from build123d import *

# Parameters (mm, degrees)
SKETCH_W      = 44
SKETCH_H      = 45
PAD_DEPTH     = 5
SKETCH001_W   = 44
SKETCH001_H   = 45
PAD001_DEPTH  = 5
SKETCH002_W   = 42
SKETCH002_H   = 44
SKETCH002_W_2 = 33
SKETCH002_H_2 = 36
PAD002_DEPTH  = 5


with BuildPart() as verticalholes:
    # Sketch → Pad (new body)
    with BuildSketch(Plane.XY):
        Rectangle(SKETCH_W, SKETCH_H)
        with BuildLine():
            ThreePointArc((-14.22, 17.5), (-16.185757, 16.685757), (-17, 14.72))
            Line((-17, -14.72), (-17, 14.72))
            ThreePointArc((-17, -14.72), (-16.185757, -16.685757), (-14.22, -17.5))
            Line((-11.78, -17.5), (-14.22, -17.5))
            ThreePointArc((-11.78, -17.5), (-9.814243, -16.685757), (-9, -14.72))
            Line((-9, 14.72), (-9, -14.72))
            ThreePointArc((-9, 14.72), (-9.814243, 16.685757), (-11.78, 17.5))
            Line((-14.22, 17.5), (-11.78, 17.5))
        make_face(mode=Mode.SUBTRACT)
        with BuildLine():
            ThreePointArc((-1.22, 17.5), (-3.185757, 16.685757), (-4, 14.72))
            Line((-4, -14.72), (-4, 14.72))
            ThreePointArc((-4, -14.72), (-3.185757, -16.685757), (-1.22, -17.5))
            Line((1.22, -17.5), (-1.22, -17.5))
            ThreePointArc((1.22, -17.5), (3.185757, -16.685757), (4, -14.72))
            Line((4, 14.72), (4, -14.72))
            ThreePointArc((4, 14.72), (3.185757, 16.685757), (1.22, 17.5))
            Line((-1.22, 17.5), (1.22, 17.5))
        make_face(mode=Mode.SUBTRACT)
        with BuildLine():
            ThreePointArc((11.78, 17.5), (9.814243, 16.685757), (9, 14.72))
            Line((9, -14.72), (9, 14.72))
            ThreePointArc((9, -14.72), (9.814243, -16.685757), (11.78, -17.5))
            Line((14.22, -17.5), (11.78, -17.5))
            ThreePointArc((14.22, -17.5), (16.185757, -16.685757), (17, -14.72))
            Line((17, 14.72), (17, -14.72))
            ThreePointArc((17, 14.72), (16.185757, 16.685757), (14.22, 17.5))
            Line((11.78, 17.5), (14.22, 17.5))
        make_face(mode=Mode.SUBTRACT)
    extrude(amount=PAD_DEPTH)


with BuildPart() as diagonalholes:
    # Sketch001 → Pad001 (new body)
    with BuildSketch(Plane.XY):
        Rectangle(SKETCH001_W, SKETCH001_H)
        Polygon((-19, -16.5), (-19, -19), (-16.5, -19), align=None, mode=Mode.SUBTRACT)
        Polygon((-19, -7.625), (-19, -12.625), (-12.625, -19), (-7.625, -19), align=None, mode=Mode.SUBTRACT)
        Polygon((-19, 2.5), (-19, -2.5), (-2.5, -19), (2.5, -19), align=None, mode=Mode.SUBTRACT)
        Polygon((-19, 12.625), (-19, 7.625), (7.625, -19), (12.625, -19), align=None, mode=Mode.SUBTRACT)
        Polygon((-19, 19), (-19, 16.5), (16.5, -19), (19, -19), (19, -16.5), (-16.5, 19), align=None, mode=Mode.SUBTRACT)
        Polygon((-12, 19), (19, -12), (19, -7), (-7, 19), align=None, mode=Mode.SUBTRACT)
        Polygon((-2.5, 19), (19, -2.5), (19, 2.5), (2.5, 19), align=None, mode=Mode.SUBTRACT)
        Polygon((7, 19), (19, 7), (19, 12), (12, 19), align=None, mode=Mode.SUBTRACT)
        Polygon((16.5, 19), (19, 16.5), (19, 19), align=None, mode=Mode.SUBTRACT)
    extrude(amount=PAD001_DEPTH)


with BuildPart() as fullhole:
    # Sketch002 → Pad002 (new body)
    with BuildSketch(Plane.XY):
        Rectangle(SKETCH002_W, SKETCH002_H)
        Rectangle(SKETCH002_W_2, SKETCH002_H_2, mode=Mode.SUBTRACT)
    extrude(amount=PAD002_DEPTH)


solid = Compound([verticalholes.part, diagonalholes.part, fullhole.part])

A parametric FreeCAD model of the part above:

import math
import FreeCAD as App
import Part
import Sketcher

V = App.Vector
Q = App.Units.Quantity

doc = App.newDocument("Part")
params = doc.addObject("Spreadsheet::Sheet", "Params")
for row, (alias, value) in enumerate([
    ("sketch1_width", "44 mm"),
    ("sketch1_height", "45 mm"),
    ("sketch1_radius", "2.779999 mm"),
    ("pad1_length", "5 mm"),
    ("sketch2_width", "44 mm"),
    ("sketch2_width2", "5 mm"),
    ("sketch2_height", "45 mm"),
    ("sketch2_width3", "2.5 mm"),
    ("pad2_length", "5 mm"),
    ("sketch3_width", "42 mm"),
    ("sketch3_width2", "33 mm"),
    ("sketch3_height", "44 mm"),
    ("sketch3_height2", "36 mm"),
    ("pad3_length", "5 mm"),
], start=1):
    params.set(f"A{row}", alias)
    params.set(f"B{row}", "=" + value)
    params.setAlias(f"B{row}", alias)

body = doc.addObject("PartDesign::Body", "Body")

sketch1 = body.newObject("Sketcher::SketchObject", "Sketch")
sketch1.AttachmentSupport = (doc.getObject("XY_Plane"), [""])
sketch1.MapMode = "FlatFace"
sketch1.addGeometry(Part.LineSegment(V(-22, 22.5, 0), V(-22, -22.5, 0)), False)
sketch1.addGeometry(Part.LineSegment(V(-22, -22.5, 0), V(22, -22.5, 0)), False)
sketch1.addGeometry(Part.LineSegment(V(22, -22.5, 0), V(22, 22.5, 0)), False)
sketch1.addGeometry(Part.LineSegment(V(22, 22.5, 0), V(-22, 22.5, 0)), False)
sketch1.addGeometry(Part.ArcOfCircle(Part.Circle(V(-14.220001, 14.720001, 0), V(0, 0, 1), 2.779999), math.radians(89.99999), math.radians(180.00001)), False)
sketch1.addGeometry(Part.LineSegment(V(-14.22, 17.5, 0), V(-11.78, 17.5, 0)), False)
sketch1.addGeometry(Part.ArcOfCircle(Part.Circle(V(-11.779999, 14.720001, 0), V(0, 0, 1), 2.779999), math.radians(-0.00001), math.radians(90.00001)), False)
sketch1.addGeometry(Part.LineSegment(V(-9, 14.72, 0), V(-9, -14.72, 0)), False)
sketch1.addGeometry(Part.ArcOfCircle(Part.Circle(V(-11.779999, -14.720001, 0), V(0, 0, 1), 2.779999), math.radians(-90.00001), math.radians(0.00001)), False)
sketch1.addGeometry(Part.LineSegment(V(-11.78, -17.5, 0), V(-14.22, -17.5, 0)), False)
sketch1.addGeometry(Part.ArcOfCircle(Part.Circle(V(-14.220001, -14.720001, 0), V(0, 0, 1), 2.779999), math.radians(179.99999), math.radians(270.00001)), False)
sketch1.addGeometry(Part.LineSegment(V(-17, -14.72, 0), V(-17, 14.72, 0)), False)
sketch1.addGeometry(Part.ArcOfCircle(Part.Circle(V(-1.220001, 14.720001, 0), V(0, 0, 1), 2.779999), math.radians(89.99999), math.radians(180.00001)), False)
sketch1.addGeometry(Part.LineSegment(V(-1.22, 17.5, 0), V(1.22, 17.5, 0)), False)
sketch1.addGeometry(Part.ArcOfCircle(Part.Circle(V(1.220001, 14.720001, 0), V(0, 0, 1), 2.779999), math.radians(-0.00001), math.radians(90.00001)), False)
sketch1.addGeometry(Part.LineSegment(V(4, 14.72, 0), V(4, -14.72, 0)), False)
sketch1.addGeometry(Part.ArcOfCircle(Part.Circle(V(1.220001, -14.720001, 0), V(0, 0, 1), 2.779999), math.radians(-90.00001), math.radians(0.00001)), False)
sketch1.addGeometry(Part.LineSegment(V(1.22, -17.5, 0), V(-1.22, -17.5, 0)), False)
sketch1.addGeometry(Part.ArcOfCircle(Part.Circle(V(-1.220001, -14.720001, 0), V(0, 0, 1), 2.779999), math.radians(179.99999), math.radians(270.00001)), False)
sketch1.addGeometry(Part.LineSegment(V(-4, -14.72, 0), V(-4, 14.72, 0)), False)
sketch1.addGeometry(Part.ArcOfCircle(Part.Circle(V(11.779999, 14.720001, 0), V(0, 0, 1), 2.779999), math.radians(89.99999), math.radians(180.00001)), False)
sketch1.addGeometry(Part.LineSegment(V(11.78, 17.5, 0), V(14.22, 17.5, 0)), False)
sketch1.addGeometry(Part.ArcOfCircle(Part.Circle(V(14.220001, 14.720001, 0), V(0, 0, 1), 2.779999), math.radians(-0.00001), math.radians(90.00001)), False)
sketch1.addGeometry(Part.LineSegment(V(17, 14.72, 0), V(17, -14.72, 0)), False)
sketch1.addGeometry(Part.ArcOfCircle(Part.Circle(V(14.220001, -14.720001, 0), V(0, 0, 1), 2.779999), math.radians(-90.00001), math.radians(0.00001)), False)
sketch1.addGeometry(Part.LineSegment(V(14.22, -17.5, 0), V(11.78, -17.5, 0)), False)
sketch1.addGeometry(Part.ArcOfCircle(Part.Circle(V(11.779999, -14.720001, 0), V(0, 0, 1), 2.779999), math.radians(179.99999), math.radians(270.00001)), False)
sketch1.addGeometry(Part.LineSegment(V(9, -14.72, 0), V(9, 14.72, 0)), False)
sketch1.addConstraint(Sketcher.Constraint("Coincident", 0, 2, 1, 1))
sketch1.addConstraint(Sketcher.Constraint("Coincident", 1, 2, 2, 1))
sketch1.addConstraint(Sketcher.Constraint("Coincident", 2, 2, 3, 1))
sketch1.addConstraint(Sketcher.Constraint("Coincident", 3, 2, 0, 1))
sketch1.addConstraint(Sketcher.Constraint("Tangent", 4, 1, 5, 1))
sketch1.addConstraint(Sketcher.Constraint("Tangent", 5, 2, 6, 2))
sketch1.addConstraint(Sketcher.Constraint("Tangent", 6, 1, 7, 1))
sketch1.addConstraint(Sketcher.Constraint("Tangent", 7, 2, 8, 2))
sketch1.addConstraint(Sketcher.Constraint("Tangent", 8, 1, 9, 1))
sketch1.addConstraint(Sketcher.Constraint("Tangent", 9, 2, 10, 2))
sketch1.addConstraint(Sketcher.Constraint("Tangent", 10, 1, 11, 1))
sketch1.addConstraint(Sketcher.Constraint("Tangent", 11, 2, 4, 2))
sketch1.addConstraint(Sketcher.Constraint("Tangent", 12, 1, 13, 1))
sketch1.addConstraint(Sketcher.Constraint("Tangent", 13, 2, 14, 2))
sketch1.addConstraint(Sketcher.Constraint("Tangent", 14, 1, 15, 1))
sketch1.addConstraint(Sketcher.Constraint("Tangent", 15, 2, 16, 2))
sketch1.addConstraint(Sketcher.Constraint("Tangent", 16, 1, 17, 1))
sketch1.addConstraint(Sketcher.Constraint("Tangent", 17, 2, 18, 2))
sketch1.addConstraint(Sketcher.Constraint("Tangent", 18, 1, 19, 1))
sketch1.addConstraint(Sketcher.Constraint("Tangent", 19, 2, 12, 2))
sketch1.addConstraint(Sketcher.Constraint("Tangent", 20, 1, 21, 1))
sketch1.addConstraint(Sketcher.Constraint("Tangent", 21, 2, 22, 2))
sketch1.addConstraint(Sketcher.Constraint("Tangent", 22, 1, 23, 1))
sketch1.addConstraint(Sketcher.Constraint("Tangent", 23, 2, 24, 2))
sketch1.addConstraint(Sketcher.Constraint("Tangent", 24, 1, 25, 1))
sketch1.addConstraint(Sketcher.Constraint("Tangent", 25, 2, 26, 2))
sketch1.addConstraint(Sketcher.Constraint("Tangent", 26, 1, 27, 1))
sketch1.addConstraint(Sketcher.Constraint("Tangent", 27, 2, 20, 2))
sketch1.addConstraint(Sketcher.Constraint("Vertical", 0))
sketch1.addConstraint(Sketcher.Constraint("Horizontal", 1))
sketch1.addConstraint(Sketcher.Constraint("Vertical", 2))
sketch1.addConstraint(Sketcher.Constraint("Horizontal", 3))
sketch1.addConstraint(Sketcher.Constraint("Horizontal", 5))
sketch1.addConstraint(Sketcher.Constraint("Vertical", 7))
sketch1.addConstraint(Sketcher.Constraint("Horizontal", 9))
sketch1.addConstraint(Sketcher.Constraint("Vertical", 11))
sketch1.addConstraint(Sketcher.Constraint("Horizontal", 13))
sketch1.addConstraint(Sketcher.Constraint("Vertical", 15))
sketch1.addConstraint(Sketcher.Constraint("Horizontal", 17))
sketch1.addConstraint(Sketcher.Constraint("Vertical", 19))
sketch1.addConstraint(Sketcher.Constraint("Horizontal", 21))
sketch1.addConstraint(Sketcher.Constraint("Vertical", 23))
sketch1.addConstraint(Sketcher.Constraint("Horizontal", 25))
sketch1.addConstraint(Sketcher.Constraint("Vertical", 27))
sketch1.addConstraint(Sketcher.Constraint("Equal", 4, 6))
sketch1.addConstraint(Sketcher.Constraint("Equal", 6, 8))
sketch1.addConstraint(Sketcher.Constraint("Equal", 8, 10))
sketch1.addConstraint(Sketcher.Constraint("Equal", 10, 12))
sketch1.addConstraint(Sketcher.Constraint("Equal", 12, 14))
sketch1.addConstraint(Sketcher.Constraint("Equal", 14, 16))
sketch1.addConstraint(Sketcher.Constraint("Equal", 16, 18))
sketch1.addConstraint(Sketcher.Constraint("Equal", 18, 20))
sketch1.addConstraint(Sketcher.Constraint("Equal", 20, 22))
sketch1.addConstraint(Sketcher.Constraint("Equal", 22, 24))
sketch1.addConstraint(Sketcher.Constraint("Equal", 24, 26))
sketch1.addConstraint(Sketcher.Constraint("Symmetric", 12, 3, 16, 3, -1, 1))
sketch1.addConstraint(Sketcher.Constraint("Symmetric", 8, 3, 20, 3, -1, 1))
sketch1.addConstraint(Sketcher.Constraint("Symmetric", 4, 3, 24, 3, -1, 1))
sketch1.addConstraint(Sketcher.Constraint("Symmetric", 0, 2, 2, 2, -1, 1))
sketch1.addConstraint(Sketcher.Constraint("Horizontal", 6, 3, 12, 3))
sketch1.addConstraint(Sketcher.Constraint("Horizontal", 10, 3, 16, 3))
sketch1.addConstraint(Sketcher.Constraint("Equal", 9, 13))
sketch1.addConstraint(Sketcher.Constraint("DistanceX", 1, 1, 1, 2, Q("44 mm")))
sketch1.addConstraint(Sketcher.Constraint("DistanceY", 0, 2, 0, 1, Q("45 mm")))
sketch1.addConstraint(Sketcher.Constraint("Radius", 4, Q("2.779999 mm")))
sketch1.addConstraint(Sketcher.Constraint("DistanceX", 6, 1, -1, 1, Q("9 mm")))
sketch1.addConstraint(Sketcher.Constraint("DistanceX", 10, 1, -1, 1, Q("17 mm")))
sketch1.addConstraint(Sketcher.Constraint("DistanceY", 4, 1, 3, 2, Q("5 mm")))
sketch1.setExpression("Constraints[62]", "Params.sketch1_width")
sketch1.setExpression("Constraints[63]", "Params.sketch1_height")
sketch1.setExpression("Constraints[64]", "Params.sketch1_radius")
pad1 = body.newObject("PartDesign::Pad", "Pad")
pad1.Profile = sketch1
pad1.setExpression("Length", "Params.pad1_length")
body2 = doc.addObject("PartDesign::Body", "Body001")

sketch2 = body2.newObject("Sketcher::SketchObject", "Sketch001")
sketch2.AttachmentSupport = (doc.getObject("XY_Plane001"), [""])
sketch2.MapMode = "FlatFace"
sketch2.addGeometry(Part.LineSegment(V(-22, 22.5, 0), V(-22, -22.5, 0)), False)
sketch2.addGeometry(Part.LineSegment(V(-22, -22.5, 0), V(22, -22.5, 0)), False)
sketch2.addGeometry(Part.LineSegment(V(22, -22.5, 0), V(22, 22.5, 0)), False)
sketch2.addGeometry(Part.LineSegment(V(22, 22.5, 0), V(-22, 22.5, 0)), False)
sketch2.addGeometry(Part.LineSegment(V(-19, -19, 0), V(-19, -16.5, 0)), False)
sketch2.addGeometry(Part.LineSegment(V(-19, -16.5, 0), V(-16.5, -19, 0)), False)
sketch2.addGeometry(Part.LineSegment(V(-16.5, -19, 0), V(-19, -19, 0)), False)
sketch2.addGeometry(Part.LineSegment(V(-19, -12.625, 0), V(-19, -7.625, 0)), False)
sketch2.addGeometry(Part.LineSegment(V(-19, -7.625, 0), V(-7.625, -19, 0)), False)
sketch2.addGeometry(Part.LineSegment(V(-7.625, -19, 0), V(-12.625, -19, 0)), False)
sketch2.addGeometry(Part.LineSegment(V(-12.625, -19, 0), V(-19, -12.625, 0)), False)
sketch2.addGeometry(Part.LineSegment(V(-19, -2.5, 0), V(-19, 2.5, 0)), False)
sketch2.addGeometry(Part.LineSegment(V(-19, 2.5, 0), V(2.5, -19, 0)), False)
sketch2.addGeometry(Part.LineSegment(V(2.5, -19, 0), V(-2.5, -19, 0)), False)
sketch2.addGeometry(Part.LineSegment(V(-2.5, -19, 0), V(-19, -2.5, 0)), False)
sketch2.addGeometry(Part.LineSegment(V(-19, 7.625, 0), V(-19, 12.625, 0)), False)
sketch2.addGeometry(Part.LineSegment(V(-19, 12.625, 0), V(12.625, -19, 0)), False)
sketch2.addGeometry(Part.LineSegment(V(12.625, -19, 0), V(7.625, -19, 0)), False)
sketch2.addGeometry(Part.LineSegment(V(7.625, -19, 0), V(-19, 7.625, 0)), False)
sketch2.addGeometry(Part.LineSegment(V(-19, 16.5, 0), V(-19, 19, 0)), False)
sketch2.addGeometry(Part.LineSegment(V(-19, 19, 0), V(-16.5, 19, 0)), False)
sketch2.addGeometry(Part.LineSegment(V(-16.5, 19, 0), V(19, -16.5, 0)), False)
sketch2.addGeometry(Part.LineSegment(V(19, -16.5, 0), V(19, -19, 0)), False)
sketch2.addGeometry(Part.LineSegment(V(19, -19, 0), V(16.5, -19, 0)), False)
sketch2.addGeometry(Part.LineSegment(V(16.5, -19, 0), V(-19, 16.5, 0)), False)
sketch2.addGeometry(Part.LineSegment(V(19, -12, 0), V(-12, 19, 0)), False)
sketch2.addGeometry(Part.LineSegment(V(-12, 19, 0), V(-7, 19, 0)), False)
sketch2.addGeometry(Part.LineSegment(V(-7, 19, 0), V(19, -7, 0)), False)
sketch2.addGeometry(Part.LineSegment(V(19, -7, 0), V(19, -12, 0)), False)
sketch2.addGeometry(Part.LineSegment(V(19, -2.5, 0), V(-2.5, 19, 0)), False)
sketch2.addGeometry(Part.LineSegment(V(-2.5, 19, 0), V(2.5, 19, 0)), False)
sketch2.addGeometry(Part.LineSegment(V(2.5, 19, 0), V(19, 2.5, 0)), False)
sketch2.addGeometry(Part.LineSegment(V(19, 2.5, 0), V(19, -2.5, 0)), False)
sketch2.addGeometry(Part.LineSegment(V(19, 7, 0), V(7, 19, 0)), False)
sketch2.addGeometry(Part.LineSegment(V(7, 19, 0), V(12, 19, 0)), False)
sketch2.addGeometry(Part.LineSegment(V(12, 19, 0), V(19, 12, 0)), False)
sketch2.addGeometry(Part.LineSegment(V(19, 12, 0), V(19, 7, 0)), False)
sketch2.addGeometry(Part.LineSegment(V(19, 16.5, 0), V(16.5, 19, 0)), False)
sketch2.addGeometry(Part.LineSegment(V(16.5, 19, 0), V(19, 19, 0)), False)
sketch2.addGeometry(Part.LineSegment(V(19, 19, 0), V(19, 16.5, 0)), False)
sketch2.addConstraint(Sketcher.Constraint("Coincident", 0, 2, 1, 1))
sketch2.addConstraint(Sketcher.Constraint("Coincident", 1, 2, 2, 1))
sketch2.addConstraint(Sketcher.Constraint("Coincident", 2, 2, 3, 1))
sketch2.addConstraint(Sketcher.Constraint("Coincident", 3, 2, 0, 1))
sketch2.addConstraint(Sketcher.Constraint("Coincident", 4, 2, 5, 1))
sketch2.addConstraint(Sketcher.Constraint("Coincident", 5, 2, 6, 1))
sketch2.addConstraint(Sketcher.Constraint("Coincident", 6, 2, 4, 1))
sketch2.addConstraint(Sketcher.Constraint("Coincident", 7, 2, 8, 1))
sketch2.addConstraint(Sketcher.Constraint("Coincident", 8, 2, 9, 1))
sketch2.addConstraint(Sketcher.Constraint("Coincident", 9, 2, 10, 1))
sketch2.addConstraint(Sketcher.Constraint("Coincident", 10, 2, 7, 1))
sketch2.addConstraint(Sketcher.Constraint("Coincident", 11, 2, 12, 1))
sketch2.addConstraint(Sketcher.Constraint("Coincident", 12, 2, 13, 1))
sketch2.addConstraint(Sketcher.Constraint("Coincident", 13, 2, 14, 1))
sketch2.addConstraint(Sketcher.Constraint("Coincident", 14, 2, 11, 1))
sketch2.addConstraint(Sketcher.Constraint("Coincident", 15, 2, 16, 1))
sketch2.addConstraint(Sketcher.Constraint("Coincident", 16, 2, 17, 1))
sketch2.addConstraint(Sketcher.Constraint("Coincident", 17, 2, 18, 1))
sketch2.addConstraint(Sketcher.Constraint("Coincident", 18, 2, 15, 1))
sketch2.addConstraint(Sketcher.Constraint("Coincident", 19, 2, 20, 1))
sketch2.addConstraint(Sketcher.Constraint("Coincident", 20, 2, 21, 1))
sketch2.addConstraint(Sketcher.Constraint("Coincident", 21, 2, 22, 1))
sketch2.addConstraint(Sketcher.Constraint("Coincident", 22, 2, 23, 1))
sketch2.addConstraint(Sketcher.Constraint("Coincident", 23, 2, 24, 1))
sketch2.addConstraint(Sketcher.Constraint("Coincident", 24, 2, 19, 1))
sketch2.addConstraint(Sketcher.Constraint("Coincident", 25, 2, 26, 1))
sketch2.addConstraint(Sketcher.Constraint("Coincident", 26, 2, 27, 1))
sketch2.addConstraint(Sketcher.Constraint("Coincident", 27, 2, 28, 1))
sketch2.addConstraint(Sketcher.Constraint("Coincident", 28, 2, 25, 1))
sketch2.addConstraint(Sketcher.Constraint("Coincident", 29, 2, 30, 1))
sketch2.addConstraint(Sketcher.Constraint("Coincident", 30, 2, 31, 1))
sketch2.addConstraint(Sketcher.Constraint("Coincident", 31, 2, 32, 1))
sketch2.addConstraint(Sketcher.Constraint("Coincident", 32, 2, 29, 1))
sketch2.addConstraint(Sketcher.Constraint("Coincident", 33, 2, 34, 1))
sketch2.addConstraint(Sketcher.Constraint("Coincident", 34, 2, 35, 1))
sketch2.addConstraint(Sketcher.Constraint("Coincident", 35, 2, 36, 1))
sketch2.addConstraint(Sketcher.Constraint("Coincident", 36, 2, 33, 1))
sketch2.addConstraint(Sketcher.Constraint("Coincident", 37, 2, 38, 1))
sketch2.addConstraint(Sketcher.Constraint("Coincident", 38, 2, 39, 1))
sketch2.addConstraint(Sketcher.Constraint("Coincident", 39, 2, 37, 1))
sketch2.addConstraint(Sketcher.Constraint("Vertical", 0))
sketch2.addConstraint(Sketcher.Constraint("Horizontal", 1))
sketch2.addConstraint(Sketcher.Constraint("Vertical", 2))
sketch2.addConstraint(Sketcher.Constraint("Horizontal", 3))
sketch2.addConstraint(Sketcher.Constraint("Vertical", 4))
sketch2.addConstraint(Sketcher.Constraint("Horizontal", 6))
sketch2.addConstraint(Sketcher.Constraint("Vertical", 7))
sketch2.addConstraint(Sketcher.Constraint("Horizontal", 9))
sketch2.addConstraint(Sketcher.Constraint("Vertical", 11))
sketch2.addConstraint(Sketcher.Constraint("Horizontal", 13))
sketch2.addConstraint(Sketcher.Constraint("Vertical", 15))
sketch2.addConstraint(Sketcher.Constraint("Horizontal", 17))
sketch2.addConstraint(Sketcher.Constraint("Vertical", 19))
sketch2.addConstraint(Sketcher.Constraint("Horizontal", 20))
sketch2.addConstraint(Sketcher.Constraint("Vertical", 22))
sketch2.addConstraint(Sketcher.Constraint("Horizontal", 23))
sketch2.addConstraint(Sketcher.Constraint("Horizontal", 26))
sketch2.addConstraint(Sketcher.Constraint("Vertical", 28))
sketch2.addConstraint(Sketcher.Constraint("Horizontal", 30))
sketch2.addConstraint(Sketcher.Constraint("Vertical", 32))
sketch2.addConstraint(Sketcher.Constraint("Horizontal", 34))
sketch2.addConstraint(Sketcher.Constraint("Vertical", 36))
sketch2.addConstraint(Sketcher.Constraint("Horizontal", 38))
sketch2.addConstraint(Sketcher.Constraint("Vertical", 39))
sketch2.addConstraint(Sketcher.Constraint("Symmetric", 0, 2, 2, 2, -1, 1))
sketch2.addConstraint(Sketcher.Constraint("Symmetric", 19, 2, 22, 2, -1, 1))
sketch2.addConstraint(Sketcher.Constraint("Symmetric", 12, 2, 29, 2, -1, 1))
sketch2.addConstraint(Sketcher.Constraint("Symmetric", 14, 2, 31, 2, -1, 1))
sketch2.addConstraint(Sketcher.Constraint("Symmetric", 5, 2, 37, 2, -1, 1))
sketch2.addConstraint(Sketcher.Constraint("Symmetric", 4, 2, 39, 2, -1, 1))
sketch2.addConstraint(Sketcher.Constraint("Symmetric", 9, 2, 16, 2, -2))
sketch2.addConstraint(Sketcher.Constraint("Symmetric", 4, 2, 21, 2, -2))
sketch2.addConstraint(Sketcher.Constraint("Symmetric", 5, 2, 23, 2, -2))
sketch2.addConstraint(Sketcher.Constraint("Symmetric", 26, 2, 33, 2, -2))
sketch2.addConstraint(Sketcher.Constraint("Symmetric", 10, 2, 15, 2, -1))
sketch2.addConstraint(Sketcher.Constraint("Symmetric", 28, 2, 35, 2, -1))
sketch2.addConstraint(Sketcher.Constraint("Parallel", 5, 8))
sketch2.addConstraint(Sketcher.Constraint("Parallel", 8, 10))
sketch2.addConstraint(Sketcher.Constraint("Parallel", 10, 12))
sketch2.addConstraint(Sketcher.Constraint("Parallel", 12, 14))
sketch2.addConstraint(Sketcher.Constraint("Parallel", 14, 16))
sketch2.addConstraint(Sketcher.Constraint("Parallel", 16, 18))
sketch2.addConstraint(Sketcher.Constraint("Parallel", 18, 21))
sketch2.addConstraint(Sketcher.Constraint("Parallel", 21, 24))
sketch2.addConstraint(Sketcher.Constraint("Parallel", 24, 25))
sketch2.addConstraint(Sketcher.Constraint("Parallel", 25, 27))
sketch2.addConstraint(Sketcher.Constraint("Parallel", 27, 29))
sketch2.addConstraint(Sketcher.Constraint("Parallel", 29, 31))
sketch2.addConstraint(Sketcher.Constraint("Parallel", 31, 33))
sketch2.addConstraint(Sketcher.Constraint("Parallel", 33, 35))
sketch2.addConstraint(Sketcher.Constraint("Horizontal", 6, 2, 8, 2))
sketch2.addConstraint(Sketcher.Constraint("Horizontal", 9, 2, 12, 2))
sketch2.addConstraint(Sketcher.Constraint("Horizontal", 20, 2, 25, 2))
sketch2.addConstraint(Sketcher.Constraint("Horizontal", 11, 2, 31, 2))
sketch2.addConstraint(Sketcher.Constraint("Horizontal", 24, 2, 39, 2))
sketch2.addConstraint(Sketcher.Constraint("Vertical", 10, 2, 11, 2))
sketch2.addConstraint(Sketcher.Constraint("Vertical", 22, 2, 27, 2))
sketch2.addConstraint(Sketcher.Constraint("Equal", 9, 13))
sketch2.addConstraint(Sketcher.Constraint("Equal", 13, 17))
sketch2.addConstraint(Sketcher.Constraint("Equal", 17, 26))
sketch2.addConstraint(Sketcher.Constraint("Equal", 38, 4))
sketch2.addConstraint(Sketcher.Constraint("DistanceX", 1, 1, 1, 2, Q("44 mm")))
sketch2.addConstraint(Sketcher.Constraint("DistanceX", 9, 2, 9, 1, Q("5 mm")))
sketch2.addConstraint(Sketcher.Constraint("DistanceY", 0, 2, 0, 1, Q("45 mm")))
sketch2.addConstraint(Sketcher.Constraint("DistanceX", 6, 2, 6, 1, Q("2.5 mm")))
sketch2.addConstraint(Sketcher.Constraint("DistanceX", 4, 2, -1, 1, Q("19 mm")))
sketch2.addConstraint(Sketcher.Constraint("DistanceX", 25, 2, -1, 1, Q("12 mm")))
sketch2.addConstraint(Sketcher.Constraint("DistanceY", 7, 2, 15, 2, Q("20.25 mm")))
sketch2.setExpression("Constraints[101]", "Params.sketch2_width")
sketch2.setExpression("Constraints[102]", "Params.sketch2_width2")
sketch2.setExpression("Constraints[103]", "Params.sketch2_height")
sketch2.setExpression("Constraints[104]", "Params.sketch2_width3")
pad2 = body2.newObject("PartDesign::Pad", "Pad001")
pad2.Profile = sketch2
pad2.setExpression("Length", "Params.pad2_length")
body3 = doc.addObject("PartDesign::Body", "Body002")

sketch3 = body3.newObject("Sketcher::SketchObject", "Sketch002")
sketch3.AttachmentSupport = (doc.getObject("XY_Plane002"), [""])
sketch3.MapMode = "FlatFace"
sketch3.addGeometry(Part.LineSegment(V(-21, 22, 0), V(-21, -22, 0)), False)
sketch3.addGeometry(Part.LineSegment(V(-21, -22, 0), V(21, -22, 0)), False)
sketch3.addGeometry(Part.LineSegment(V(21, -22, 0), V(21, 22, 0)), False)
sketch3.addGeometry(Part.LineSegment(V(21, 22, 0), V(-21, 22, 0)), False)
sketch3.addGeometry(Part.LineSegment(V(16.5, -18, 0), V(-16.5, -18, 0)), False)
sketch3.addGeometry(Part.LineSegment(V(-16.5, -18, 0), V(-16.5, 18, 0)), False)
sketch3.addGeometry(Part.LineSegment(V(-16.5, 18, 0), V(16.5, 18, 0)), False)
sketch3.addGeometry(Part.LineSegment(V(16.5, 18, 0), V(16.5, -18, 0)), False)
sketch3.addConstraint(Sketcher.Constraint("Coincident", 0, 2, 1, 1))
sketch3.addConstraint(Sketcher.Constraint("Coincident", 1, 2, 2, 1))
sketch3.addConstraint(Sketcher.Constraint("Coincident", 2, 2, 3, 1))
sketch3.addConstraint(Sketcher.Constraint("Coincident", 3, 2, 0, 1))
sketch3.addConstraint(Sketcher.Constraint("Coincident", 4, 2, 5, 1))
sketch3.addConstraint(Sketcher.Constraint("Coincident", 5, 2, 6, 1))
sketch3.addConstraint(Sketcher.Constraint("Coincident", 6, 2, 7, 1))
sketch3.addConstraint(Sketcher.Constraint("Coincident", 7, 2, 4, 1))
sketch3.addConstraint(Sketcher.Constraint("Vertical", 0))
sketch3.addConstraint(Sketcher.Constraint("Horizontal", 1))
sketch3.addConstraint(Sketcher.Constraint("Vertical", 2))
sketch3.addConstraint(Sketcher.Constraint("Horizontal", 3))
sketch3.addConstraint(Sketcher.Constraint("Horizontal", 4))
sketch3.addConstraint(Sketcher.Constraint("Vertical", 5))
sketch3.addConstraint(Sketcher.Constraint("Horizontal", 6))
sketch3.addConstraint(Sketcher.Constraint("Vertical", 7))
sketch3.addConstraint(Sketcher.Constraint("Symmetric", 0, 2, 2, 2, -1, 1))
sketch3.addConstraint(Sketcher.Constraint("Symmetric", 4, 2, 6, 2, -1, 1))
sketch3.addConstraint(Sketcher.Constraint("DistanceX", 1, 1, 1, 2, Q("42 mm")))
sketch3.addConstraint(Sketcher.Constraint("DistanceX", 4, 2, 4, 1, Q("33 mm")))
sketch3.addConstraint(Sketcher.Constraint("DistanceY", 0, 2, 0, 1, Q("44 mm")))
sketch3.addConstraint(Sketcher.Constraint("DistanceY", 5, 1, 5, 2, Q("36 mm")))
sketch3.setExpression("Constraints[18]", "Params.sketch3_width")
sketch3.setExpression("Constraints[19]", "Params.sketch3_width2")
sketch3.setExpression("Constraints[20]", "Params.sketch3_height")
sketch3.setExpression("Constraints[21]", "Params.sketch3_height2")
pad3 = body3.newObject("PartDesign::Pad", "Pad002")
pad3.Profile = sketch3
pad3.setExpression("Length", "Params.pad3_length")

doc.recompute()
